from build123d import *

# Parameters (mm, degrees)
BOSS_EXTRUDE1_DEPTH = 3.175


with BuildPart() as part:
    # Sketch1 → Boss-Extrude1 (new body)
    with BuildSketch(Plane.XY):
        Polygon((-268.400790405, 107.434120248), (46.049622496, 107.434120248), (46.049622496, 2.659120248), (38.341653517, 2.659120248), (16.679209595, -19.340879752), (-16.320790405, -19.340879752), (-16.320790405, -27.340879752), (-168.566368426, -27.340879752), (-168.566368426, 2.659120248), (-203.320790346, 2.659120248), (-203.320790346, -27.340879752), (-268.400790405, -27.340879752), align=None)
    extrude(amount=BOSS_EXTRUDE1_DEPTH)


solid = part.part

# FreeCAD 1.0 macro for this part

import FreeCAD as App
import Part
import Sketcher
Q = App.Units.Quantity

doc = App.newDocument("Part")
body = doc.addObject("PartDesign::Body", "Body")

sketch1 = doc.addObject("Sketcher::SketchObject", "Sketch")
body.addObject(sketch1)
sketch1.AttachmentSupport = (doc.XY_Plane, [""])
sketch1.MapMode = "FlatFace"
sketch1.addGeometry([
    Part.LineSegment(App.Vector(46, 107, 0), App.Vector(-268, 107, 0)),
    Part.LineSegment(App.Vector(-268, 107, 0), App.Vector(-268, -27, 0)),
    Part.LineSegment(App.Vector(-268, -27, 0), App.Vector(-203, -27, 0)),
    Part.LineSegment(App.Vector(-203, -27, 0), App.Vector(-203, 3, 0)),
    Part.LineSegment(App.Vector(-203, 3, 0), App.Vector(-169, 3, 0)),
    Part.LineSegment(App.Vector(-169, 3, 0), App.Vector(-169, -27, 0)),
    Part.LineSegment(App.Vector(-169, -27, 0), App.Vector(-16, -27, 0)),
    Part.LineSegment(App.Vector(-16, -27, 0), App.Vector(-16, -19, 0)),
    Part.LineSegment(App.Vector(-16, -19, 0), App.Vector(17, -19, 0)),
    Part.LineSegment(App.Vector(17, -19, 0), App.Vector(38, 3, 0)),
    Part.LineSegment(App.Vector(38, 3, 0), App.Vector(46, 3, 0)),
    Part.LineSegment(App.Vector(46, 3, 0), App.Vector(46, 107, 0)),
], False)
sketch1.addConstraint([
    Sketcher.Constraint("Coincident", 0, 2, 1, 1),
    Sketcher.Constraint("Coincident", 1, 2, 2, 1),
    Sketcher.Constraint("Coincident", 2, 2, 3, 1),
    Sketcher.Constraint("Coincident", 3, 2, 4, 1),
    Sketcher.Constraint("Coincident", 4, 2, 5, 1),
    Sketcher.Constraint("Coincident", 5, 2, 6, 1),
    Sketcher.Constraint("Coincident", 6, 2, 7, 1),
    Sketcher.Constraint("Coincident", 7, 2, 8, 1),
    Sketcher.Constraint("Coincident", 8, 2, 9, 1),
    Sketcher.Constraint("Coincident", 9, 2, 10, 1),
    Sketcher.Constraint("Coincident", 10, 2, 11, 1),
    Sketcher.Constraint("Coincident", 11, 2, 0, 1),
    Sketcher.Constraint("Horizontal", 0),
    Sketcher.Constraint("Vertical", 1),
    Sketcher.Constraint("Horizontal", 2),
    Sketcher.Constraint("Vertical", 3),
    Sketcher.Constraint("Horizontal", 4),
    Sketcher.Constraint("Vertical", 5),
    Sketcher.Constraint("Horizontal", 6),
    Sketcher.Constraint("Vertical", 7),
    Sketcher.Constraint("Horizontal", 8),
    Sketcher.Constraint("Horizontal", 10),
    Sketcher.Constraint("Vertical", 11),
    Sketcher.Constraint("Horizontal", 2, 2, 5, 2),
    Sketcher.Constraint("Horizontal", 4, 2, 9, 2),
    Sketcher.Constraint("DistanceX", 8, 1, 8, 2, Q("33 mm")),
    Sketcher.Constraint("DistanceY", 3, 1, 3, 2, Q("30 mm")),
    Sketcher.Constraint("DistanceY", 7, 1, 7, 2, Q("8 mm")),
    Sketcher.Constraint("DistanceX", 2, 2, 6, 2, Q("187 mm")),
    Sketcher.Constraint("DistanceX", 2, 1, 2, 2, Q("65.08 mm")),
    Sketcher.Constraint("DistanceY", 1, 2, 1, 1, Q("134.775 mm")),
    Sketcher.Constraint("DistanceX", 4, 1, 4, 2, Q("34.754422 mm")),
    Sketcher.Constraint("DistanceX", 10, 1, 10, 2, Q("7.707969 mm")),
    Sketcher.Constraint("DistanceX", 0, 2, 0, 1, Q("314.450413 mm")),
    Sketcher.Constraint("DistanceX", 0, 2, -1, 1, Q("268.40079 mm")),
    Sketcher.Constraint("DistanceY", -1, 1, 0, 2, Q("107.43412 mm")),
])
pad1 = doc.addObject("PartDesign::Pad", "Pad")
body.addObject(pad1)
pad1.Profile = sketch1
pad1.Length = 3.175

doc.recompute()
